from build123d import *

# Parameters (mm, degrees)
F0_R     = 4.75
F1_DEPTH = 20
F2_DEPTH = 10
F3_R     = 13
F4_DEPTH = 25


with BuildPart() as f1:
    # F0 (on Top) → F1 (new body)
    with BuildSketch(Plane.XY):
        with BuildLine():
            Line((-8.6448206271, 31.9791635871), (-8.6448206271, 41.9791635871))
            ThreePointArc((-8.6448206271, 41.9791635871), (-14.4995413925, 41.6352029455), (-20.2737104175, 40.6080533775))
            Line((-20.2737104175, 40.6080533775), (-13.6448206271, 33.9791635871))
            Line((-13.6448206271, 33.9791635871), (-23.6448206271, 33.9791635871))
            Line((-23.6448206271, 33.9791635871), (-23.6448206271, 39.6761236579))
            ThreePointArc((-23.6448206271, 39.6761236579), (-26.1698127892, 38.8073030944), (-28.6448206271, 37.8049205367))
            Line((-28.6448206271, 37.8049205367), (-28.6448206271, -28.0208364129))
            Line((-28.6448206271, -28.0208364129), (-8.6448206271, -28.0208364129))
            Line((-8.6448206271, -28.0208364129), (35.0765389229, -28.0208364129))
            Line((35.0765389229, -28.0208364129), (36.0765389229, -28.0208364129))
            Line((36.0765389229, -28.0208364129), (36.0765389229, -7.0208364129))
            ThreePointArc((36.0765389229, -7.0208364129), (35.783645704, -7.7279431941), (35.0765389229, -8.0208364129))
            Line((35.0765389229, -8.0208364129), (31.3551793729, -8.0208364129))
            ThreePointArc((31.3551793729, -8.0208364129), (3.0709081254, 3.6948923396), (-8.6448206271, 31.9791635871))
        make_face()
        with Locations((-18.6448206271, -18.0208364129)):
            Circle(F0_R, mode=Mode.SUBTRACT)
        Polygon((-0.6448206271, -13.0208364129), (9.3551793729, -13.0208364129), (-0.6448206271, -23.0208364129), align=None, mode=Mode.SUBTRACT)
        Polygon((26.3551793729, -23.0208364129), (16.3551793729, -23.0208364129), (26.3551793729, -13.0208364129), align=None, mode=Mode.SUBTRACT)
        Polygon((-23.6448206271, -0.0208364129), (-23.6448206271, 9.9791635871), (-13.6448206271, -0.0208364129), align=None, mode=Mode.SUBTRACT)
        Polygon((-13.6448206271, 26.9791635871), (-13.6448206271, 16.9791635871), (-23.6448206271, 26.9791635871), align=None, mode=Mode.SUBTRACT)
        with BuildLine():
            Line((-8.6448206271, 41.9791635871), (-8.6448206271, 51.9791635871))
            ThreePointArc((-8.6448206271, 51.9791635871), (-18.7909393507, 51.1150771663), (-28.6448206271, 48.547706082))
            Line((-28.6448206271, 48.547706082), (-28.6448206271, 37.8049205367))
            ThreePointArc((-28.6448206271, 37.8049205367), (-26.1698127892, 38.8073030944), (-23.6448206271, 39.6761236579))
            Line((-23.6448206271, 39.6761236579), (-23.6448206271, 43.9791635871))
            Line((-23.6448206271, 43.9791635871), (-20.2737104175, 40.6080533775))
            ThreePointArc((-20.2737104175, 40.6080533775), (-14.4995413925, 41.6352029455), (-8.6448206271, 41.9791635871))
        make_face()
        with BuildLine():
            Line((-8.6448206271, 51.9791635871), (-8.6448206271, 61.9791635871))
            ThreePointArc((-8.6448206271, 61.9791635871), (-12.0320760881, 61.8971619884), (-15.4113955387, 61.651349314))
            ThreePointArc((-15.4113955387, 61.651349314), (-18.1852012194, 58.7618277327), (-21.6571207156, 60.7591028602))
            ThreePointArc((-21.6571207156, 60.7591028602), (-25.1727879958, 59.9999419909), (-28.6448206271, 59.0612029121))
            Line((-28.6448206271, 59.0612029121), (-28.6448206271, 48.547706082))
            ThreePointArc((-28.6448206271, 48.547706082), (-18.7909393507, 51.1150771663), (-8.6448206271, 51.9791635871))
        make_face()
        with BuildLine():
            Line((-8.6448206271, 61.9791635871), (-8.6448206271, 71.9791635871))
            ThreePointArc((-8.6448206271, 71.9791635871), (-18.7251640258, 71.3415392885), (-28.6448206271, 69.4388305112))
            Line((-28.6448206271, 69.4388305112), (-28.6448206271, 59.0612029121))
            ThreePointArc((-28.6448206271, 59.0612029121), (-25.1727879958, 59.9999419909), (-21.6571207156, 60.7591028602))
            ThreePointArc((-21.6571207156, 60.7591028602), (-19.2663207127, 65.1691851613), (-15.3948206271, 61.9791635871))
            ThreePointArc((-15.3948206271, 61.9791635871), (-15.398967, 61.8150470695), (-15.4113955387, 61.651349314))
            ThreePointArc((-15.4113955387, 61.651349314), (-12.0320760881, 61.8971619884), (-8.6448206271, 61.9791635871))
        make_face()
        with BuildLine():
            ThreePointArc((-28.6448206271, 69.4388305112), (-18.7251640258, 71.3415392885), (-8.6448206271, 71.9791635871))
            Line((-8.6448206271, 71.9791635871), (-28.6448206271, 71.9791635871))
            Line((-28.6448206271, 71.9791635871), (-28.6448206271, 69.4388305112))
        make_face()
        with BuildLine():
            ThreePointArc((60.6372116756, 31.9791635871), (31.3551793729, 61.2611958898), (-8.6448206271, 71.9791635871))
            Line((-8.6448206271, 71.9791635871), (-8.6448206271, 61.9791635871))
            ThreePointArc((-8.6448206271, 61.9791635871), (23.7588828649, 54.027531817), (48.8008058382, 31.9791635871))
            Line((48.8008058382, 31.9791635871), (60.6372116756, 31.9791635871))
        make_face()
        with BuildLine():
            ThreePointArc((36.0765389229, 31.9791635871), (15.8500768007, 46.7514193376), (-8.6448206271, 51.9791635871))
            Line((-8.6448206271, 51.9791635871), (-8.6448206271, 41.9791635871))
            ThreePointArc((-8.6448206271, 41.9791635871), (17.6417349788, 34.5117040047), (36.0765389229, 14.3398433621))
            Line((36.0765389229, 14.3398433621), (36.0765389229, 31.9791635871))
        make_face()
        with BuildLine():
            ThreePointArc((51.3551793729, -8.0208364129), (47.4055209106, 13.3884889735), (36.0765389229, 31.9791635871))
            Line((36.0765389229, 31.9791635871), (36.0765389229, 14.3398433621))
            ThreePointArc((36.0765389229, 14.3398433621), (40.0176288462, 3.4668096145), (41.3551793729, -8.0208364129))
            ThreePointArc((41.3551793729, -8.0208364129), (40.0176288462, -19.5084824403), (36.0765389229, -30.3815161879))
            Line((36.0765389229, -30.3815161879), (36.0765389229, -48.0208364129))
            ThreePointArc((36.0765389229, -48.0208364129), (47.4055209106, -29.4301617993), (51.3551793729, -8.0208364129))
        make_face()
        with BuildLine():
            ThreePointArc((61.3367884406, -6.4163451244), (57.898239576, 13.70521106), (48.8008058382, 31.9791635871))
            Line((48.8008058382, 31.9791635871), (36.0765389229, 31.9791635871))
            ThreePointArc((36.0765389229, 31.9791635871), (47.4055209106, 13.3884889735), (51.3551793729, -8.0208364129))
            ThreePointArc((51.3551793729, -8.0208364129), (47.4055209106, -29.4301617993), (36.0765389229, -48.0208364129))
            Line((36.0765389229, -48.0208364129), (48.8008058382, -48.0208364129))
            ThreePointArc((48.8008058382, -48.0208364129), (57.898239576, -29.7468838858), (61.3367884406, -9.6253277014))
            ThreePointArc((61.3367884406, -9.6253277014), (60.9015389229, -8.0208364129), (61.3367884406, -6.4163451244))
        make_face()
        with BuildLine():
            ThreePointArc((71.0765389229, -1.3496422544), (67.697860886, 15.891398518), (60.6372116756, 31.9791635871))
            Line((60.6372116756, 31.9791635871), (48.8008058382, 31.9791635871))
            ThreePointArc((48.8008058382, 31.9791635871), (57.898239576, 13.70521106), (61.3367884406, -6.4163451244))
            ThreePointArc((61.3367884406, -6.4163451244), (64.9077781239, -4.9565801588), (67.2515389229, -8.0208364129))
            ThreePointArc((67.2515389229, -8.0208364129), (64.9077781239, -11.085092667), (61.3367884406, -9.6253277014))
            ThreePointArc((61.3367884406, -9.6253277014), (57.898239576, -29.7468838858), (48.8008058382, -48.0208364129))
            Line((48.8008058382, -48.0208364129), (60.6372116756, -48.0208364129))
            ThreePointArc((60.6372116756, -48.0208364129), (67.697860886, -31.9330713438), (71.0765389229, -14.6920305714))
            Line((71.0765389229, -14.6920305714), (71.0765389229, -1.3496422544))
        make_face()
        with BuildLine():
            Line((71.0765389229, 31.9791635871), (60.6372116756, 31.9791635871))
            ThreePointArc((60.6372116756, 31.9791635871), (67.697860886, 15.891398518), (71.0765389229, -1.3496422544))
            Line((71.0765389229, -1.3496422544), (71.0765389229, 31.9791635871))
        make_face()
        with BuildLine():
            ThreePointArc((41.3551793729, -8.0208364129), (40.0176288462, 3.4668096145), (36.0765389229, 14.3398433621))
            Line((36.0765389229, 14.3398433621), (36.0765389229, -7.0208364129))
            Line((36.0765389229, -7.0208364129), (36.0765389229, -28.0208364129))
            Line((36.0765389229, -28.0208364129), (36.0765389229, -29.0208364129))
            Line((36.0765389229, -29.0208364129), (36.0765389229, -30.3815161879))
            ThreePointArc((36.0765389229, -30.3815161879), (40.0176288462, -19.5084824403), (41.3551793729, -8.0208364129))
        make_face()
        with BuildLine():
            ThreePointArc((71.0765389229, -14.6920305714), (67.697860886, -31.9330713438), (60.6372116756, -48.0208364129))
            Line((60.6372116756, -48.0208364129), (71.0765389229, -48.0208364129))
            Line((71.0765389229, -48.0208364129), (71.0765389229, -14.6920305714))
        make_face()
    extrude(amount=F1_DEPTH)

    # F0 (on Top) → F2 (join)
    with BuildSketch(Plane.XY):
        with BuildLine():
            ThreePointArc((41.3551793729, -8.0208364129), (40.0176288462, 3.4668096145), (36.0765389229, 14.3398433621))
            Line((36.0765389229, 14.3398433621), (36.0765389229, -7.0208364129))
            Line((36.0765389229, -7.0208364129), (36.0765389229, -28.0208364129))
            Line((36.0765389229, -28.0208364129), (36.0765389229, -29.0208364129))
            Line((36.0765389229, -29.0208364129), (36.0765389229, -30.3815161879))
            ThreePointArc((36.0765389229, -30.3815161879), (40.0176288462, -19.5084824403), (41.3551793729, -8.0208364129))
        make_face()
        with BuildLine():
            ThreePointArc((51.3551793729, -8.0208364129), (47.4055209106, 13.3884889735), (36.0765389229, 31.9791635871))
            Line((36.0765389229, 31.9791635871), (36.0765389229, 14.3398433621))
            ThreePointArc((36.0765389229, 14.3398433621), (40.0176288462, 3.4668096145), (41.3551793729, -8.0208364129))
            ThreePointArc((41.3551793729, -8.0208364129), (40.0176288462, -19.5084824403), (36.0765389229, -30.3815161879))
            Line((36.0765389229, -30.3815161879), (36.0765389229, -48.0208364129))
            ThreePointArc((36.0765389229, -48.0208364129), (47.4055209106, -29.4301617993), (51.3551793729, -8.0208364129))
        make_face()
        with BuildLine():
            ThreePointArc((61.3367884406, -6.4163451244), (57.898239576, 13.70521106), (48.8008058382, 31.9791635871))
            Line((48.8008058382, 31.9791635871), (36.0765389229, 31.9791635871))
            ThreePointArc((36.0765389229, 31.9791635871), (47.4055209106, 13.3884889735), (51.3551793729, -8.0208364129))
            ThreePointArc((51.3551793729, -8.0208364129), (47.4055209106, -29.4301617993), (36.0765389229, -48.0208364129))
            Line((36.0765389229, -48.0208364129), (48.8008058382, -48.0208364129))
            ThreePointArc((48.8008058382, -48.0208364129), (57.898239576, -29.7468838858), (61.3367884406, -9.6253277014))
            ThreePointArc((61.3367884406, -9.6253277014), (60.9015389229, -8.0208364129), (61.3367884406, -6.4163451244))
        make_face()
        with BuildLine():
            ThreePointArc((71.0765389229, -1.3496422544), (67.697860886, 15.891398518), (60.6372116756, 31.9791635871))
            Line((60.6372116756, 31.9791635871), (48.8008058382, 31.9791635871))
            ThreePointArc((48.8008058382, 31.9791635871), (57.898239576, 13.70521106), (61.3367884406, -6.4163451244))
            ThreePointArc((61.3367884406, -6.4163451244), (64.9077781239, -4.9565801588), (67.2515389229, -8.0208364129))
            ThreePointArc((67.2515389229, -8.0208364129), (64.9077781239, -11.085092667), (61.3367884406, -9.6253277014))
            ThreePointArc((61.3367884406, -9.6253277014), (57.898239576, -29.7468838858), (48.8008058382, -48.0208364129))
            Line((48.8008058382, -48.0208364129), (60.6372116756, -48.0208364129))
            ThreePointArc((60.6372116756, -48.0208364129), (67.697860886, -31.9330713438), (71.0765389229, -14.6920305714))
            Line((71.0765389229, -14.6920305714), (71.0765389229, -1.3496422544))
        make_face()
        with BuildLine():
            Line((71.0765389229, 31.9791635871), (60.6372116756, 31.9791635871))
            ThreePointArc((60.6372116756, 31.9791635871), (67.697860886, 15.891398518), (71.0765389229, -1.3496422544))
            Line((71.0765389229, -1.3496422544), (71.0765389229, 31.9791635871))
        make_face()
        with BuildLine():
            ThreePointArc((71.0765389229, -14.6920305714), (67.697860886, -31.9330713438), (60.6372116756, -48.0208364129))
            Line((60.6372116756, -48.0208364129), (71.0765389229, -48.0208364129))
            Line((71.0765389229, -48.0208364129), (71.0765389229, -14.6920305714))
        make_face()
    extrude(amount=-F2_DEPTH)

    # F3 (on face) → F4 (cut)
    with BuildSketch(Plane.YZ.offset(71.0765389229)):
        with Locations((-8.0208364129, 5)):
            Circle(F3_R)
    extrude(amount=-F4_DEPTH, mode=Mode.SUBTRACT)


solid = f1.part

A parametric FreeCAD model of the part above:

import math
import FreeCAD as App
import Part
import Sketcher

V = App.Vector
Q = App.Units.Quantity

doc = App.newDocument("Part")
body = doc.addObject("PartDesign::Body", "Body")

sketch1 = body.newObject("Sketcher::SketchObject", "Sketch")
sketch1.AttachmentSupport = (doc.getObject("XY_Plane"), [""])
sketch1.MapMode = "FlatFace"
sketch1.addGeometry([
    Part.LineSegment(V(36.08, -48.02, 0), V(71.08, -48.02, 0)),
    Part.LineSegment(V(71.08, -48.02, 0), V(71.08, 31.98, 0)),
    Part.LineSegment(V(71.08, 31.98, 0), V(60.64, 31.98, 0)),
    Part.ArcOfCircle(Part.Circle(V(-8.64, -8.02, 0), V(0, 0, 1), 80), math.radians(30), math.radians(90)),
    Part.LineSegment(V(-8.64, 71.98, 0), V(-28.64, 71.98, 0)),
    Part.LineSegment(V(-28.64, 71.98, 0), V(-28.64, -28.02, 0)),
    Part.LineSegment(V(-28.64, -28.02, 0), V(36.08, -28.02, 0)),
    Part.LineSegment(V(36.08, -28.02, 0), V(36.08, -48.02, 0)),
    Part.ArcOfCircle(Part.Circle(V(64.08, -8.02, 0), V(0, 0, 1), 3.17), math.radians(150), math.radians(210)),
    Part.ArcOfCircle(Part.Circle(V(64.08, -8.02, 0), V(0, 0, 1), 3.17), math.radians(0), math.radians(150)),
    Part.ArcOfCircle(Part.Circle(V(64.08, -8.02, 0), V(0, 0, 1), 3.17), math.radians(-150), math.radians(0)),
    Part.ArcOfCircle(Part.Circle(V(35.08, -7.02, 0), V(0, 0, 1), 1), math.radians(-90), math.radians(0)),
    Part.LineSegment(V(35.08, -8.02, 0), V(31.36, -8.02, 0)),
    Part.ArcOfCircle(Part.Circle(V(31.36, 31.98, 0), V(0, 0, 1), 40), math.radians(180), math.radians(270)),
    Part.LineSegment(V(-8.64, 31.98, 0), V(-8.64, 41.98, 0)),
    Part.ArcOfCircle(Part.Circle(V(-8.64, -8.02, 0), V(0, 0, 1), 50), math.radians(27), math.radians(90)),
    Part.LineSegment(V(36.08, 14.34, 0), V(36.08, -7.02, 0)),
    Part.Circle(V(-18.64, -18.02, 0), V(0, 0, 1), 4.75),
    Part.LineSegment(V(-0.64, -23.02, 0), V(-0.64, -13.02, 0)),
    Part.LineSegment(V(-0.64, -13.02, 0), V(9.36, -13.02, 0)),
    Part.LineSegment(V(9.36, -13.02, 0), V(-0.64, -23.02, 0)),
    Part.LineSegment(V(-13.64, -0.02, 0), V(-23.64, -0.02, 0)),
    Part.LineSegment(V(-23.64, -0.02, 0), V(-23.64, 9.98, 0)),
    Part.LineSegment(V(-23.64, 9.98, 0), V(-13.64, -0.02, 0)),
    Part.LineSegment(V(26.36, -13.02, 0), V(26.36, -23.02, 0)),
    Part.LineSegment(V(26.36, -23.02, 0), V(16.36, -23.02, 0)),
    Part.LineSegment(V(16.36, -23.02, 0), V(26.36, -13.02, 0)),
    Part.LineSegment(V(-23.64, 26.98, 0), V(-13.64, 26.98, 0)),
    Part.LineSegment(V(-13.64, 26.98, 0), V(-13.64, 16.98, 0)),
    Part.LineSegment(V(-13.64, 16.98, 0), V(-23.64, 26.98, 0)),
    Part.LineSegment(V(-13.64, 33.98, 0), V(-23.64, 33.98, 0)),
    Part.LineSegment(V(-23.64, 33.98, 0), V(-23.64, 43.98, 0)),
    Part.LineSegment(V(-23.64, 43.98, 0), V(-13.64, 33.98, 0)),
    Part.ArcOfCircle(Part.Circle(V(-18.64, 61.98, 0), V(0, 0, 1), 3.25), math.radians(-158), math.radians(-6)),
    Part.ArcOfCircle(Part.Circle(V(-18.64, 61.98, 0), V(0, 0, 1), 3.25), math.radians(0), math.radians(202)),
    Part.ArcOfCircle(Part.Circle(V(-18.64, 61.98, 0), V(0, 0, 1), 3.25), math.radians(-5.79), math.radians(0)),
    Part.ArcOfCircle(Part.Circle(V(-8.64, -8.02, 0), V(0, 0, 1), 70), math.radians(35), math.radians(90)),
    Part.LineSegment(V(48.8, 31.98, 0), V(36.08, 31.98, 0)),
    Part.ArcOfCircle(Part.Circle(V(-8.64, -8.02, 0), V(0, 0, 1), 60), math.radians(42), math.radians(90)),
    Part.LineSegment(V(-8.64, 51.98, 0), V(-8.64, 61.98, 0)),
], False)
sketch1.addConstraint([
    Sketcher.Constraint("Coincident", 0, 2, 1, 1),
    Sketcher.Constraint("Coincident", 1, 2, 2, 1),
    Sketcher.Constraint("Coincident", 2, 2, 3, 1),
    Sketcher.Constraint("Tangent", 3, 2, 4, 1),
    Sketcher.Constraint("Coincident", 4, 2, 5, 1),
    Sketcher.Constraint("Coincident", 5, 2, 6, 1),
    Sketcher.Constraint("Coincident", 6, 2, 7, 1),
    Sketcher.Constraint("Coincident", 7, 2, 0, 1),
    Sketcher.Constraint("Tangent", 8, 1, 9, 2),
    Sketcher.Constraint("Tangent", 9, 1, 10, 2),
    Sketcher.Constraint("Tangent", 10, 1, 8, 2),
    Sketcher.Constraint("Tangent", 11, 1, 12, 1),
    Sketcher.Constraint("Tangent", 12, 2, 13, 2),
    Sketcher.Constraint("Tangent", 13, 1, 14, 1),
    Sketcher.Constraint("Coincident", 14, 2, 15, 2),
    Sketcher.Constraint("Coincident", 15, 1, 16, 1),
    Sketcher.Constraint("Tangent", 16, 2, 11, 2),
    Sketcher.Constraint("Coincident", 18, 2, 19, 1),
    Sketcher.Constraint("Coincident", 19, 2, 20, 1),
    Sketcher.Constraint("Coincident", 20, 2, 18, 1),
    Sketcher.Constraint("Coincident", 21, 2, 22, 1),
    Sketcher.Constraint("Coincident", 22, 2, 23, 1),
    Sketcher.Constraint("Coincident", 23, 2, 21, 1),
    Sketcher.Constraint("Coincident", 24, 2, 25, 1),
    Sketcher.Constraint("Coincident", 25, 2, 26, 1),
    Sketcher.Constraint("Coincident", 26, 2, 24, 1),
    Sketcher.Constraint("Coincident", 27, 2, 28, 1),
    Sketcher.Constraint("Coincident", 28, 2, 29, 1),
    Sketcher.Constraint("Coincident", 29, 2, 27, 1),
    Sketcher.Constraint("Coincident", 30, 2, 31, 1),
    Sketcher.Constraint("Coincident", 31, 2, 32, 1),
    Sketcher.Constraint("Coincident", 32, 2, 30, 1),
    Sketcher.Constraint("Tangent", 33, 1, 34, 2),
    Sketcher.Constraint("Tangent", 34, 1, 35, 2),
    Sketcher.Constraint("Tangent", 35, 1, 33, 2),
    Sketcher.Constraint("Coincident", 36, 1, 37, 1),
    Sketcher.Constraint("Coincident", 37, 2, 38, 1),
    Sketcher.Constraint("Coincident", 38, 2, 39, 1),
    Sketcher.Constraint("Coincident", 39, 2, 36, 2),
    Sketcher.Constraint("Horizontal", 0),
    Sketcher.Constraint("Vertical", 1),
    Sketcher.Constraint("Horizontal", 2),
    Sketcher.Constraint("Horizontal", 4),
    Sketcher.Constraint("Vertical", 5),
    Sketcher.Constraint("Horizontal", 6),
    Sketcher.Constraint("Vertical", 7),
    Sketcher.Constraint("Horizontal", 12),
    Sketcher.Constraint("Vertical", 14),
    Sketcher.Constraint("Vertical", 16),
    Sketcher.Constraint("Vertical", 18),
    Sketcher.Constraint("Horizontal", 19),
    Sketcher.Constraint("Horizontal", 21),
    Sketcher.Constraint("Vertical", 22),
    Sketcher.Constraint("Vertical", 24),
    Sketcher.Constraint("Horizontal", 25),
    Sketcher.Constraint("Horizontal", 27),
    Sketcher.Constraint("Vertical", 28),
    Sketcher.Constraint("Horizontal", 30),
    Sketcher.Constraint("Vertical", 31),
    Sketcher.Constraint("Horizontal", 37),
    Sketcher.Constraint("Vertical", 39),
    Sketcher.Constraint("Coincident", 15, 3, 3, 3),
    Sketcher.Constraint("Coincident", 36, 3, 3, 3),
    Sketcher.Constraint("Coincident", 38, 3, 3, 3),
    Sketcher.Constraint("Perpendicular", 20, 23),
    Sketcher.Constraint("Perpendicular", 23, 26),
    Sketcher.Constraint("Perpendicular", 26, 29),
    Sketcher.Constraint("Parallel", 29, 32),
    Sketcher.Constraint("Horizontal", 3, 3, 8, 3),
    Sketcher.Constraint("Horizontal", 13, 3, 1, 2),
    Sketcher.Constraint("Horizontal", 38, 3, 9, 1),
    Sketcher.Constraint("Horizontal", 9, 1, 11, 1),
    Sketcher.Constraint("Horizontal", 20, 2, 24, 2),
    Sketcher.Constraint("Horizontal", 19, 2, 26, 2),
    Sketcher.Constraint("Horizontal", 35, 3, 34, 1),
    Sketcher.Constraint("Horizontal", 13, 1, 36, 1),
    Sketcher.Constraint("Horizontal", 34, 1, 39, 2),
    Sketcher.Constraint("Vertical", 17, 3, 33, 3),
    Sketcher.Constraint("Vertical", 8, 1, 10, 1),
    Sketcher.Constraint("Vertical", 3, 2, 13, 1),
    Sketcher.Constraint("Vertical", 7, 2, 15, 1),
    Sketcher.Constraint("Vertical", 23, 2, 27, 2),
    Sketcher.Constraint("Vertical", 22, 2, 29, 2),
    Sketcher.Constraint("Vertical", 29, 2, 30, 2),
    Sketcher.Constraint("Vertical", 28, 2, 32, 2),
    Sketcher.Constraint("Vertical", 16, 2, 37, 2),
    Sketcher.Constraint("Vertical", 14, 2, 38, 2),
    Sketcher.Constraint("Equal", 19, 21),
    Sketcher.Constraint("Equal", 4, 7),
    Sketcher.Constraint("Equal", 30, 14),
    Sketcher.Constraint("Equal", 14, 18),
    Sketcher.Constraint("Equal", 31, 39),
    Sketcher.Constraint("Radius", 3, Q("80 mm")),
    Sketcher.Constraint("Radius", 11, Q("1 mm")),
    Sketcher.Constraint("Radius", 13, Q("40 mm")),
    Sketcher.Constraint("Radius", 15, Q("50 mm")),
    Sketcher.Constraint("Radius", 36, Q("70 mm")),
    Sketcher.Constraint("Diameter", 17, Q("9.5 mm")),
    Sketcher.Constraint("DistanceX", 0, 1, 0, 2, Q("35 mm")),
    Sketcher.Constraint("DistanceX", 4, 2, 4, 1, Q("20 mm")),
    Sketcher.Constraint("DistanceY", 1, 1, 1, 2, Q("80 mm")),
    Sketcher.Constraint("Radius", 33, Q("3.25 mm")),
    Sketcher.Constraint("Radius", 8, Q("3.175 mm")),
    Sketcher.Constraint("DistanceX", 11, 3, 8, 3, Q("29 mm")),
    Sketcher.Constraint("DistanceX", 17, 3, 3, 3, Q("10 mm")),
    Sketcher.Constraint("DistanceY", 17, 3, 3, 3, Q("10 mm")),
    Sketcher.Constraint("DistanceX", 3, 3, 18, 2, Q("8 mm")),
    Sketcher.Constraint("DistanceY", 18, 2, 3, 3, Q("5 mm")),
    Sketcher.Constraint("DistanceX", 21, 2, 3, 3, Q("15 mm")),
    Sketcher.Constraint("DistanceY", 3, 3, 21, 2, Q("8 mm")),
    Sketcher.Constraint("DistanceX", 24, 2, 12, 2, Q("5 mm")),
    Sketcher.Constraint("DistanceY", 27, 2, 13, 1, Q("5 mm")),
    Sketcher.Constraint("DistanceY", 29, 2, 30, 2, Q("7 mm")),
    Sketcher.Constraint("DistanceX", 33, 1, 35, 3, Q("3.0123 mm")),
    Sketcher.Constraint("DistanceX", 3, 3, -1, 1, Q("8.644821 mm")),
    Sketcher.Constraint("DistanceX", -1, 1, 8, 1, Q("61.336788 mm")),
    Sketcher.Constraint("DistanceY", -1, 1, 35, 1, Q("61.651349 mm")),
    Sketcher.Constraint("DistanceY", 3, 3, -1, 1, Q("8.020836 mm")),
])
pad1 = body.newObject("PartDesign::Pad", "Pad")
pad1.Profile = sketch1
pad1.Length = 20

sketch2 = body.newObject("Sketcher::SketchObject", "Sketch001")
sketch2.AttachmentSupport = (doc.getObject("XY_Plane"), [""])
sketch2.MapMode = "FlatFace"
sketch2.addGeometry([
    Part.LineSegment(V(36.1, 32, 0), V(36.1, -48, 0)),
    Part.LineSegment(V(36.1, -48, 0), V(71.1, -48, 0)),
    Part.LineSegment(V(71.1, -48, 0), V(71.1, 32, 0)),
    Part.LineSegment(V(71.1, 32, 0), V(36.1, 32, 0)),
    Part.ArcOfCircle(Part.Circle(V(64.1, -8, 0), V(0, 0, 1), 3.2), math.radians(150), math.radians(210)),
    Part.ArcOfCircle(Part.Circle(V(64.1, -8, 0), V(0, 0, 1), 3.2), math.radians(0), math.radians(150)),
    Part.ArcOfCircle(Part.Circle(V(64.1, -8, 0), V(0, 0, 1), 3.2), math.radians(-150), math.radians(0)),
], False)
sketch2.addConstraint([
    Sketcher.Constraint("Coincident", 0, 2, 1, 1),
    Sketcher.Constraint("Coincident", 1, 2, 2, 1),
    Sketcher.Constraint("Coincident", 2, 2, 3, 1),
    Sketcher.Constraint("Coincident", 3, 2, 0, 1),
    Sketcher.Constraint("Tangent", 4, 1, 5, 2),
    Sketcher.Constraint("Tangent", 5, 1, 6, 2),
    Sketcher.Constraint("Tangent", 6, 1, 4, 2),
    Sketcher.Constraint("Vertical", 0),
    Sketcher.Constraint("Horizontal", 1),
    Sketcher.Constraint("Vertical", 2),
    Sketcher.Constraint("Horizontal", 3),
    Sketcher.Constraint("Horizontal", 6, 3, 5, 1),
    Sketcher.Constraint("Vertical", 4, 1, 6, 1),
    Sketcher.Constraint("DistanceX", 1, 1, 1, 2, Q("35 mm")),
    Sketcher.Constraint("DistanceY", 0, 2, 0, 1, Q("80 mm")),
    Sketcher.Constraint("Radius", 4, Q("3.175 mm")),
    Sketcher.Constraint("DistanceX", 0, 2, 4, 3, Q("28 mm")),
    Sketcher.Constraint("DistanceY", 0, 2, 4, 3, Q("40 mm")),
    Sketcher.Constraint("DistanceX", -1, 1, 4, 3, Q("64.076539 mm")),
    Sketcher.Constraint("DistanceX", -1, 1, 4, 1, Q("61.336788 mm")),
    Sketcher.Constraint("DistanceY", 4, 3, -1, 1, Q("8.020836 mm")),
])
pad2 = body.newObject("PartDesign::Pad", "Pad001")
pad2.Profile = sketch2
pad2.Length = 10
pad2.Reversed = True

sketch3 = body.newObject("Sketcher::SketchObject", "Sketch002")
sketch3.AttachmentSupport = (doc.getObject("YZ_Plane"), [""])
sketch3.MapMode = "FlatFace"
sketch3.AttachmentOffset = App.Placement(V(0, 0, 71.076539), App.Rotation())
sketch3.addGeometry(Part.Circle(V(-8, 5, 0), V(0, 0, 1), 13), False)
sketch3.addConstraint([
    Sketcher.Constraint("Diameter", 0, Q("26 mm")),
    Sketcher.Constraint("DistanceY", -1, 1, 0, 3, Q("5 mm")),
    Sketcher.Constraint("DistanceX", 0, 3, -1, 1, Q("8.020836 mm")),
])
pocket1 = body.newObject("PartDesign::Pocket", "Pocket")
pocket1.Profile = sketch3
pocket1.Length = 25

doc.recompute()
